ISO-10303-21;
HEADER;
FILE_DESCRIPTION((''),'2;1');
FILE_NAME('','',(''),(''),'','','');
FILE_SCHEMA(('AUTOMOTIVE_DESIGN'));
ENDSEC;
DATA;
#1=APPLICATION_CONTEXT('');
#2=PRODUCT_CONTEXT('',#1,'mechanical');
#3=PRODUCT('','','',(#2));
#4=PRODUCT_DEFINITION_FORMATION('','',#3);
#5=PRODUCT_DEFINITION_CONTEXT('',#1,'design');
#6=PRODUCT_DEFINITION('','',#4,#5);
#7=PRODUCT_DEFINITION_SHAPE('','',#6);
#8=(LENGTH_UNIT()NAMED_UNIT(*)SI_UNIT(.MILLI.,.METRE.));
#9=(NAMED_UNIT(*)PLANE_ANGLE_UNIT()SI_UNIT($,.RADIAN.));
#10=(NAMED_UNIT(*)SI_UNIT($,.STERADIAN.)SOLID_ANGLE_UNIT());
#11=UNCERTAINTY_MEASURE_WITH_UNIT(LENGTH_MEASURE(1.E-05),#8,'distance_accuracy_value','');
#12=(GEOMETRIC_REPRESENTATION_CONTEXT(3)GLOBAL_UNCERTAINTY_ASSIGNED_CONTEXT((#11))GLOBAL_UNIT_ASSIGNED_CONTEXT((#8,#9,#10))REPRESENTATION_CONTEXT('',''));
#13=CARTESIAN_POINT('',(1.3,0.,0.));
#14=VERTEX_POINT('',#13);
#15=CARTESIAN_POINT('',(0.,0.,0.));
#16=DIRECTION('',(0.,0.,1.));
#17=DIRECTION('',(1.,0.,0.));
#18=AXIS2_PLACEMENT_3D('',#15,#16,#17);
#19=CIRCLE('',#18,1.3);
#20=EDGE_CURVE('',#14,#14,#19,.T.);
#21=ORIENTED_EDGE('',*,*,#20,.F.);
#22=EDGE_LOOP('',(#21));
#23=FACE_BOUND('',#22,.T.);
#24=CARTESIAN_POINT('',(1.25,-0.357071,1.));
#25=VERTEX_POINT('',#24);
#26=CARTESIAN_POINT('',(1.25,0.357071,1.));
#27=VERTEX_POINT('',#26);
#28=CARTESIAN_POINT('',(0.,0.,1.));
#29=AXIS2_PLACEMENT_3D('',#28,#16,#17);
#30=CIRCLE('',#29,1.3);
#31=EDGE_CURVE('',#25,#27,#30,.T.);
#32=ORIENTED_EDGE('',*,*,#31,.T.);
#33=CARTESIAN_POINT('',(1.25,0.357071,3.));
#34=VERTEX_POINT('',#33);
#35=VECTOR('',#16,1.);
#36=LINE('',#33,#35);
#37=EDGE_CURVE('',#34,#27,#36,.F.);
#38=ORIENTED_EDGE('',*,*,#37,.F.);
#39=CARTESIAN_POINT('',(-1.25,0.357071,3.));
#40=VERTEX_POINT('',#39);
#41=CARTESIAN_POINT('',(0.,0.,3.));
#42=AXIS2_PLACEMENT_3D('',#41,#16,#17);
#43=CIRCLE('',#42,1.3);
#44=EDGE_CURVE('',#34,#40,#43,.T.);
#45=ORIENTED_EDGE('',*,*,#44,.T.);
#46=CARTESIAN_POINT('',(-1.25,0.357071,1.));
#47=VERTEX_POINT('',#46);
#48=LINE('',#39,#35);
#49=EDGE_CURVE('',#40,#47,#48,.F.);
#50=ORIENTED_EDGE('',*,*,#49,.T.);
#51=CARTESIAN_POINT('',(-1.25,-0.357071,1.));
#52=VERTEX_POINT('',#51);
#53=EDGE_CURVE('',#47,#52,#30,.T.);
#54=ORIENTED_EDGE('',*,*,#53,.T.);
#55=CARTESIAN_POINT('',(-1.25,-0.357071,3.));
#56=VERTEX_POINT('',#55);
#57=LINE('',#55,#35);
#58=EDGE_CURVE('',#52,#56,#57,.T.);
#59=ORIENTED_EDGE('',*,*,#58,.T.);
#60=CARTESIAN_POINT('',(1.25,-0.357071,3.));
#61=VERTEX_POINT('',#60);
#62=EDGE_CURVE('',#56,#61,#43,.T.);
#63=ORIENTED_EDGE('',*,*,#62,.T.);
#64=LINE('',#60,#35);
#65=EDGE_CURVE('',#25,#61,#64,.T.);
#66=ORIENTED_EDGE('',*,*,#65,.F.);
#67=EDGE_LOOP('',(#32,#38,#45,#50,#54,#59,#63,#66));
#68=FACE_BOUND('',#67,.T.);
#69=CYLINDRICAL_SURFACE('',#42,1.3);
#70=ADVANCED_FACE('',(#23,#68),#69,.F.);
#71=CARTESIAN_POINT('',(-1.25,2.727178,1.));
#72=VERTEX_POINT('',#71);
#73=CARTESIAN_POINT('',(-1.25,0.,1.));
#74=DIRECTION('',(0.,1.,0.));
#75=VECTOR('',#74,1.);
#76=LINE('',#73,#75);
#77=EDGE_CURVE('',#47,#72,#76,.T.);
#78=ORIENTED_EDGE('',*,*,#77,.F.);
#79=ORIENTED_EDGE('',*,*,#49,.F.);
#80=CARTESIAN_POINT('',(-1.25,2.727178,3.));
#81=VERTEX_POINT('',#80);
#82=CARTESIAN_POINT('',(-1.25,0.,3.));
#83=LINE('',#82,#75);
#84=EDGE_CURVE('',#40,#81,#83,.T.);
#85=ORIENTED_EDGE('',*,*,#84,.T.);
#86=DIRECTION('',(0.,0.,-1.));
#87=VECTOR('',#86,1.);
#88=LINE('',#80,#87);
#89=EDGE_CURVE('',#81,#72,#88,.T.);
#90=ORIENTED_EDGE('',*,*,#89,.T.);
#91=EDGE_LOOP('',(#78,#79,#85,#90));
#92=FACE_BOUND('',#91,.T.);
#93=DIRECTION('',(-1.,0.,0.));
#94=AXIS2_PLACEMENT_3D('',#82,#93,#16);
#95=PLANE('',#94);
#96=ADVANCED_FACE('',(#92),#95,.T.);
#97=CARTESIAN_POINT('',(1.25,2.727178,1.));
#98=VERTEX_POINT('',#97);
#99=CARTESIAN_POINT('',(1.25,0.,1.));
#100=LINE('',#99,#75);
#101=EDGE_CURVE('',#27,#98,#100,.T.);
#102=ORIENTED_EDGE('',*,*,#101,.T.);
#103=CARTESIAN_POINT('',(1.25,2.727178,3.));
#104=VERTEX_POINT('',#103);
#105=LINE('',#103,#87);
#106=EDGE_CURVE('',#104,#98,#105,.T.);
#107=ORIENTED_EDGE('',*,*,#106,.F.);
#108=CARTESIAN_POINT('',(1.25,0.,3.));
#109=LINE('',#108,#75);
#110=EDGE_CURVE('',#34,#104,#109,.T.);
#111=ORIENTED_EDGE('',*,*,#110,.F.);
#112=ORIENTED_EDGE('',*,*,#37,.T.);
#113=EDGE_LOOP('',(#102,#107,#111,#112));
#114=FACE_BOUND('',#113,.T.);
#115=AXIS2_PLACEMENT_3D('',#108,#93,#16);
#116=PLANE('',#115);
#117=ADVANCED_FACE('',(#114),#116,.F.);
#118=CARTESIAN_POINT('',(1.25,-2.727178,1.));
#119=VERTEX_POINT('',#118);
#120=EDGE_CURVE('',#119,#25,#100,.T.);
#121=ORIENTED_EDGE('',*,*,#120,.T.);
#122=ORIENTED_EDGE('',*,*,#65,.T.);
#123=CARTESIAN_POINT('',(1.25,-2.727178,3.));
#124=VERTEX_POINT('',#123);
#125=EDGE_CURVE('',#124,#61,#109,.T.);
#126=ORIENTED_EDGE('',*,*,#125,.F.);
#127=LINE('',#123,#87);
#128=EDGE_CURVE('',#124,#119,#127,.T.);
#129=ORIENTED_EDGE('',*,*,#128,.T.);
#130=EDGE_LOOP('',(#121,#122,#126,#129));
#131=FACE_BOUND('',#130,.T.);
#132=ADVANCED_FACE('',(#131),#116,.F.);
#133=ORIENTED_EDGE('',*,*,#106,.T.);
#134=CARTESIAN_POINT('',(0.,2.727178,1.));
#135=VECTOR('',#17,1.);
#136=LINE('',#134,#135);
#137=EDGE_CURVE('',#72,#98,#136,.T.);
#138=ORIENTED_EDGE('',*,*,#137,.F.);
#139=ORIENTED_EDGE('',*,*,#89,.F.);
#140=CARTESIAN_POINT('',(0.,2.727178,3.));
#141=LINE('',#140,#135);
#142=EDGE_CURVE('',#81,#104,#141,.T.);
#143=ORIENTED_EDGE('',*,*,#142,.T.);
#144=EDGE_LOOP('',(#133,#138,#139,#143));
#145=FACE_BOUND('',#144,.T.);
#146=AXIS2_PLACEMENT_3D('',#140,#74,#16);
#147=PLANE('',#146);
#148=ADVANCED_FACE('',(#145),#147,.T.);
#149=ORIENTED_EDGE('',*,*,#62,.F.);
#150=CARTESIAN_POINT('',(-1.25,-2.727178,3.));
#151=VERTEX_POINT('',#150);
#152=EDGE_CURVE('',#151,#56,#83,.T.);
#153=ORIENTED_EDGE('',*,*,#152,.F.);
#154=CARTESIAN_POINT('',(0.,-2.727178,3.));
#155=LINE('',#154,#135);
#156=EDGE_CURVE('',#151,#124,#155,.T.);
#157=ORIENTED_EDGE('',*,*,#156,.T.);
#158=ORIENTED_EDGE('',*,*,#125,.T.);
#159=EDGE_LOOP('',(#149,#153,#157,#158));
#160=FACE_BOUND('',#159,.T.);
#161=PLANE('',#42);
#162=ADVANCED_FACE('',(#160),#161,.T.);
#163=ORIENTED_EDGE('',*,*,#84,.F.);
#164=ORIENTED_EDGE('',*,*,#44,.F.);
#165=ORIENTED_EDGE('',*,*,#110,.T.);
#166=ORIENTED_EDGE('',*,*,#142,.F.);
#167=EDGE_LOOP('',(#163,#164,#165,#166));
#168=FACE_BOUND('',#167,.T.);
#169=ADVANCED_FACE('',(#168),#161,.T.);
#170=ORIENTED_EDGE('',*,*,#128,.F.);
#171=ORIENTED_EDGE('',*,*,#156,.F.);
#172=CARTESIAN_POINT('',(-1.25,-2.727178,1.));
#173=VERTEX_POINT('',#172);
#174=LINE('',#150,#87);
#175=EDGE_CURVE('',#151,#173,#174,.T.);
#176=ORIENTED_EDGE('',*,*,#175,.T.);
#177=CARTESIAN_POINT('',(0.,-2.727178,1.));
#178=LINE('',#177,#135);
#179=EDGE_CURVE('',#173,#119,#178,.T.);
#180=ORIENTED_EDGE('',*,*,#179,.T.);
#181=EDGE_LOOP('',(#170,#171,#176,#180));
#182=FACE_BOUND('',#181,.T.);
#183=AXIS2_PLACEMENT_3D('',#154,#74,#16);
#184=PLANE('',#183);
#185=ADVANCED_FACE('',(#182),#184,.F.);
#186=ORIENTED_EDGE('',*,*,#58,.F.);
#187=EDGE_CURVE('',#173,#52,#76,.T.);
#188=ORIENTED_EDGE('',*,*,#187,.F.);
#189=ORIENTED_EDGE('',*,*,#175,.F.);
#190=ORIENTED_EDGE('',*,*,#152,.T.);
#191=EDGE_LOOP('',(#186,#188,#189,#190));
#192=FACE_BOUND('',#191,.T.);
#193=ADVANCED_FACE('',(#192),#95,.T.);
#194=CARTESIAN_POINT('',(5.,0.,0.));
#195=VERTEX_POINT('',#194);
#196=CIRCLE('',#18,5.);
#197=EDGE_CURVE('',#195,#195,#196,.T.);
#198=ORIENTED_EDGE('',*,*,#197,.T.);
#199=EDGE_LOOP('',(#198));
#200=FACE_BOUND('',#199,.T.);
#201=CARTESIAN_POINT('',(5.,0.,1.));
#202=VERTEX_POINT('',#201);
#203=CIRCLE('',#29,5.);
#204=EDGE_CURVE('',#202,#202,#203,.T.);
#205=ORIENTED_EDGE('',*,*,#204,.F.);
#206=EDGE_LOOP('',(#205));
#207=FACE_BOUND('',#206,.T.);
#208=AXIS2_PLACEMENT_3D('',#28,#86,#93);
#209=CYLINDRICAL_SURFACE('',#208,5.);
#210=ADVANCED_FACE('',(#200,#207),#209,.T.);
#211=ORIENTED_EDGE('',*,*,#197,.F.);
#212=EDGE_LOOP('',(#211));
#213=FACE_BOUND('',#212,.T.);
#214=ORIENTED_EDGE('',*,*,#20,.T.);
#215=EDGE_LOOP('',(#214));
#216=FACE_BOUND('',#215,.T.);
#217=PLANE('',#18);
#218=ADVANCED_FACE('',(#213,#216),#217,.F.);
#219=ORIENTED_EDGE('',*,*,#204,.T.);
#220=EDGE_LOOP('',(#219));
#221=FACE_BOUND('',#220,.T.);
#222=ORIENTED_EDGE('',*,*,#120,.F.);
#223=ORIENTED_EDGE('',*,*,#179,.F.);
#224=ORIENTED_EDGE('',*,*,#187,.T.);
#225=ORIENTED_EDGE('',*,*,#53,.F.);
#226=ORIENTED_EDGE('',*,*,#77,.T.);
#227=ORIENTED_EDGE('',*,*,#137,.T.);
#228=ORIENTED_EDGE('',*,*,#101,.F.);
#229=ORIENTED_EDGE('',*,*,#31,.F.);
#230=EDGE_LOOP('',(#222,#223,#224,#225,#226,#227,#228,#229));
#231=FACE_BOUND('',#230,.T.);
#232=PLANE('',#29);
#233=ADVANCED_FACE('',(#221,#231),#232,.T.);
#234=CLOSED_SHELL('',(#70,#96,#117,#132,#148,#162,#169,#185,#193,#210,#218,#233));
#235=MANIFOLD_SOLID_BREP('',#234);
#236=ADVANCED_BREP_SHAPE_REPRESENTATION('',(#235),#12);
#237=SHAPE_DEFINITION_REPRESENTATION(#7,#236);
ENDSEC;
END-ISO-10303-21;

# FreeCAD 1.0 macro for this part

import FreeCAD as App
import Part
import Sketcher

V = App.Vector

doc = App.newDocument("Part")
body = doc.addObject("PartDesign::Body", "Body")

# Sketch on XY plane
sketch1 = doc.addObject("Sketcher::SketchObject", "Sketch")
body.addObject(sketch1)
sketch1.AttachmentSupport = (doc.XY_Plane, [""])
sketch1.MapMode = "FlatFace"
sketch1.addGeometry(Part.Circle(V(0, 0, 0), V(0, 0, 1), 5), False)
sketch1.addConstraint([
    Sketcher.Constraint("Coincident", 0, 3, -1, 1),
    Sketcher.Constraint("Diameter", 0, 10.0),
])
pad1 = doc.addObject("PartDesign::Pad", "Pad")
body.addObject(pad1)
pad1.Profile = sketch1
pad1.Length = 1

# Sketch on XY plane
sketch2 = doc.addObject("Sketcher::SketchObject", "Sketch001")
body.addObject(sketch2)
sketch2.AttachmentSupport = (doc.XY_Plane, [""])
sketch2.MapMode = "FlatFace"
sketch2.AttachmentOffset = App.Placement(V(0, 0, 1), App.Rotation())
sketch2.addGeometry([
    Part.LineSegment(V(-1.2, 2.7, 0), V(-1.2, -2.7, 0)),
    Part.LineSegment(V(-1.2, -2.7, 0), V(1.2, -2.7, 0)),
    Part.LineSegment(V(1.2, -2.7, 0), V(1.2, 2.7, 0)),
    Part.LineSegment(V(1.2, 2.7, 0), V(-1.2, 2.7, 0)),
], False)
sketch2.addConstraint([
    Sketcher.Constraint("Coincident", 0, 2, 1, 1),
    Sketcher.Constraint("Coincident", 1, 2, 2, 1),
    Sketcher.Constraint("Coincident", 2, 2, 3, 1),
    Sketcher.Constraint("Coincident", 3, 2, 0, 1),
    Sketcher.Constraint("Vertical", 0),
    Sketcher.Constraint("Horizontal", 1),
    Sketcher.Constraint("Vertical", 2),
    Sketcher.Constraint("Horizontal", 3),
    Sketcher.Constraint("Symmetric", 0, 2, 2, 2, -1, 1),
    Sketcher.Constraint("DistanceX", 1, 1, 1, 2, 2.5),
    Sketcher.Constraint("DistanceY", 0, 2, 0, 1, 5.454356),
])
pad2 = doc.addObject("PartDesign::Pad", "Pad001")
body.addObject(pad2)
pad2.Profile = sketch2
pad2.Length = 2

# Sketch on XY plane
sketch3 = doc.addObject("Sketcher::SketchObject", "Sketch002")
body.addObject(sketch3)
sketch3.AttachmentSupport = (doc.XY_Plane, [""])
sketch3.MapMode = "FlatFace"
sketch3.AttachmentOffset = App.Placement(V(0, 0, 3), App.Rotation())
sketch3.addGeometry(Part.Circle(V(0, 0, 0), V(0, 0, 1), 1.3), False)
sketch3.addConstraint([
    Sketcher.Constraint("Coincident", 0, 3, -1, 1),
    Sketcher.Constraint("Diameter", 0, 2.6),
])
doc.recompute()
hole = doc.addObject("PartDesign::Hole", "Hole")
body.addObject(hole)
hole.Profile = sketch3
hole.ThreadType = "None"
hole.Diameter = 2.6
hole.DepthType = "Dimension"
hole.Depth = 9
hole.DrillPoint = "Angled"
hole.DrillPointAngle = 118

doc.recompute()
